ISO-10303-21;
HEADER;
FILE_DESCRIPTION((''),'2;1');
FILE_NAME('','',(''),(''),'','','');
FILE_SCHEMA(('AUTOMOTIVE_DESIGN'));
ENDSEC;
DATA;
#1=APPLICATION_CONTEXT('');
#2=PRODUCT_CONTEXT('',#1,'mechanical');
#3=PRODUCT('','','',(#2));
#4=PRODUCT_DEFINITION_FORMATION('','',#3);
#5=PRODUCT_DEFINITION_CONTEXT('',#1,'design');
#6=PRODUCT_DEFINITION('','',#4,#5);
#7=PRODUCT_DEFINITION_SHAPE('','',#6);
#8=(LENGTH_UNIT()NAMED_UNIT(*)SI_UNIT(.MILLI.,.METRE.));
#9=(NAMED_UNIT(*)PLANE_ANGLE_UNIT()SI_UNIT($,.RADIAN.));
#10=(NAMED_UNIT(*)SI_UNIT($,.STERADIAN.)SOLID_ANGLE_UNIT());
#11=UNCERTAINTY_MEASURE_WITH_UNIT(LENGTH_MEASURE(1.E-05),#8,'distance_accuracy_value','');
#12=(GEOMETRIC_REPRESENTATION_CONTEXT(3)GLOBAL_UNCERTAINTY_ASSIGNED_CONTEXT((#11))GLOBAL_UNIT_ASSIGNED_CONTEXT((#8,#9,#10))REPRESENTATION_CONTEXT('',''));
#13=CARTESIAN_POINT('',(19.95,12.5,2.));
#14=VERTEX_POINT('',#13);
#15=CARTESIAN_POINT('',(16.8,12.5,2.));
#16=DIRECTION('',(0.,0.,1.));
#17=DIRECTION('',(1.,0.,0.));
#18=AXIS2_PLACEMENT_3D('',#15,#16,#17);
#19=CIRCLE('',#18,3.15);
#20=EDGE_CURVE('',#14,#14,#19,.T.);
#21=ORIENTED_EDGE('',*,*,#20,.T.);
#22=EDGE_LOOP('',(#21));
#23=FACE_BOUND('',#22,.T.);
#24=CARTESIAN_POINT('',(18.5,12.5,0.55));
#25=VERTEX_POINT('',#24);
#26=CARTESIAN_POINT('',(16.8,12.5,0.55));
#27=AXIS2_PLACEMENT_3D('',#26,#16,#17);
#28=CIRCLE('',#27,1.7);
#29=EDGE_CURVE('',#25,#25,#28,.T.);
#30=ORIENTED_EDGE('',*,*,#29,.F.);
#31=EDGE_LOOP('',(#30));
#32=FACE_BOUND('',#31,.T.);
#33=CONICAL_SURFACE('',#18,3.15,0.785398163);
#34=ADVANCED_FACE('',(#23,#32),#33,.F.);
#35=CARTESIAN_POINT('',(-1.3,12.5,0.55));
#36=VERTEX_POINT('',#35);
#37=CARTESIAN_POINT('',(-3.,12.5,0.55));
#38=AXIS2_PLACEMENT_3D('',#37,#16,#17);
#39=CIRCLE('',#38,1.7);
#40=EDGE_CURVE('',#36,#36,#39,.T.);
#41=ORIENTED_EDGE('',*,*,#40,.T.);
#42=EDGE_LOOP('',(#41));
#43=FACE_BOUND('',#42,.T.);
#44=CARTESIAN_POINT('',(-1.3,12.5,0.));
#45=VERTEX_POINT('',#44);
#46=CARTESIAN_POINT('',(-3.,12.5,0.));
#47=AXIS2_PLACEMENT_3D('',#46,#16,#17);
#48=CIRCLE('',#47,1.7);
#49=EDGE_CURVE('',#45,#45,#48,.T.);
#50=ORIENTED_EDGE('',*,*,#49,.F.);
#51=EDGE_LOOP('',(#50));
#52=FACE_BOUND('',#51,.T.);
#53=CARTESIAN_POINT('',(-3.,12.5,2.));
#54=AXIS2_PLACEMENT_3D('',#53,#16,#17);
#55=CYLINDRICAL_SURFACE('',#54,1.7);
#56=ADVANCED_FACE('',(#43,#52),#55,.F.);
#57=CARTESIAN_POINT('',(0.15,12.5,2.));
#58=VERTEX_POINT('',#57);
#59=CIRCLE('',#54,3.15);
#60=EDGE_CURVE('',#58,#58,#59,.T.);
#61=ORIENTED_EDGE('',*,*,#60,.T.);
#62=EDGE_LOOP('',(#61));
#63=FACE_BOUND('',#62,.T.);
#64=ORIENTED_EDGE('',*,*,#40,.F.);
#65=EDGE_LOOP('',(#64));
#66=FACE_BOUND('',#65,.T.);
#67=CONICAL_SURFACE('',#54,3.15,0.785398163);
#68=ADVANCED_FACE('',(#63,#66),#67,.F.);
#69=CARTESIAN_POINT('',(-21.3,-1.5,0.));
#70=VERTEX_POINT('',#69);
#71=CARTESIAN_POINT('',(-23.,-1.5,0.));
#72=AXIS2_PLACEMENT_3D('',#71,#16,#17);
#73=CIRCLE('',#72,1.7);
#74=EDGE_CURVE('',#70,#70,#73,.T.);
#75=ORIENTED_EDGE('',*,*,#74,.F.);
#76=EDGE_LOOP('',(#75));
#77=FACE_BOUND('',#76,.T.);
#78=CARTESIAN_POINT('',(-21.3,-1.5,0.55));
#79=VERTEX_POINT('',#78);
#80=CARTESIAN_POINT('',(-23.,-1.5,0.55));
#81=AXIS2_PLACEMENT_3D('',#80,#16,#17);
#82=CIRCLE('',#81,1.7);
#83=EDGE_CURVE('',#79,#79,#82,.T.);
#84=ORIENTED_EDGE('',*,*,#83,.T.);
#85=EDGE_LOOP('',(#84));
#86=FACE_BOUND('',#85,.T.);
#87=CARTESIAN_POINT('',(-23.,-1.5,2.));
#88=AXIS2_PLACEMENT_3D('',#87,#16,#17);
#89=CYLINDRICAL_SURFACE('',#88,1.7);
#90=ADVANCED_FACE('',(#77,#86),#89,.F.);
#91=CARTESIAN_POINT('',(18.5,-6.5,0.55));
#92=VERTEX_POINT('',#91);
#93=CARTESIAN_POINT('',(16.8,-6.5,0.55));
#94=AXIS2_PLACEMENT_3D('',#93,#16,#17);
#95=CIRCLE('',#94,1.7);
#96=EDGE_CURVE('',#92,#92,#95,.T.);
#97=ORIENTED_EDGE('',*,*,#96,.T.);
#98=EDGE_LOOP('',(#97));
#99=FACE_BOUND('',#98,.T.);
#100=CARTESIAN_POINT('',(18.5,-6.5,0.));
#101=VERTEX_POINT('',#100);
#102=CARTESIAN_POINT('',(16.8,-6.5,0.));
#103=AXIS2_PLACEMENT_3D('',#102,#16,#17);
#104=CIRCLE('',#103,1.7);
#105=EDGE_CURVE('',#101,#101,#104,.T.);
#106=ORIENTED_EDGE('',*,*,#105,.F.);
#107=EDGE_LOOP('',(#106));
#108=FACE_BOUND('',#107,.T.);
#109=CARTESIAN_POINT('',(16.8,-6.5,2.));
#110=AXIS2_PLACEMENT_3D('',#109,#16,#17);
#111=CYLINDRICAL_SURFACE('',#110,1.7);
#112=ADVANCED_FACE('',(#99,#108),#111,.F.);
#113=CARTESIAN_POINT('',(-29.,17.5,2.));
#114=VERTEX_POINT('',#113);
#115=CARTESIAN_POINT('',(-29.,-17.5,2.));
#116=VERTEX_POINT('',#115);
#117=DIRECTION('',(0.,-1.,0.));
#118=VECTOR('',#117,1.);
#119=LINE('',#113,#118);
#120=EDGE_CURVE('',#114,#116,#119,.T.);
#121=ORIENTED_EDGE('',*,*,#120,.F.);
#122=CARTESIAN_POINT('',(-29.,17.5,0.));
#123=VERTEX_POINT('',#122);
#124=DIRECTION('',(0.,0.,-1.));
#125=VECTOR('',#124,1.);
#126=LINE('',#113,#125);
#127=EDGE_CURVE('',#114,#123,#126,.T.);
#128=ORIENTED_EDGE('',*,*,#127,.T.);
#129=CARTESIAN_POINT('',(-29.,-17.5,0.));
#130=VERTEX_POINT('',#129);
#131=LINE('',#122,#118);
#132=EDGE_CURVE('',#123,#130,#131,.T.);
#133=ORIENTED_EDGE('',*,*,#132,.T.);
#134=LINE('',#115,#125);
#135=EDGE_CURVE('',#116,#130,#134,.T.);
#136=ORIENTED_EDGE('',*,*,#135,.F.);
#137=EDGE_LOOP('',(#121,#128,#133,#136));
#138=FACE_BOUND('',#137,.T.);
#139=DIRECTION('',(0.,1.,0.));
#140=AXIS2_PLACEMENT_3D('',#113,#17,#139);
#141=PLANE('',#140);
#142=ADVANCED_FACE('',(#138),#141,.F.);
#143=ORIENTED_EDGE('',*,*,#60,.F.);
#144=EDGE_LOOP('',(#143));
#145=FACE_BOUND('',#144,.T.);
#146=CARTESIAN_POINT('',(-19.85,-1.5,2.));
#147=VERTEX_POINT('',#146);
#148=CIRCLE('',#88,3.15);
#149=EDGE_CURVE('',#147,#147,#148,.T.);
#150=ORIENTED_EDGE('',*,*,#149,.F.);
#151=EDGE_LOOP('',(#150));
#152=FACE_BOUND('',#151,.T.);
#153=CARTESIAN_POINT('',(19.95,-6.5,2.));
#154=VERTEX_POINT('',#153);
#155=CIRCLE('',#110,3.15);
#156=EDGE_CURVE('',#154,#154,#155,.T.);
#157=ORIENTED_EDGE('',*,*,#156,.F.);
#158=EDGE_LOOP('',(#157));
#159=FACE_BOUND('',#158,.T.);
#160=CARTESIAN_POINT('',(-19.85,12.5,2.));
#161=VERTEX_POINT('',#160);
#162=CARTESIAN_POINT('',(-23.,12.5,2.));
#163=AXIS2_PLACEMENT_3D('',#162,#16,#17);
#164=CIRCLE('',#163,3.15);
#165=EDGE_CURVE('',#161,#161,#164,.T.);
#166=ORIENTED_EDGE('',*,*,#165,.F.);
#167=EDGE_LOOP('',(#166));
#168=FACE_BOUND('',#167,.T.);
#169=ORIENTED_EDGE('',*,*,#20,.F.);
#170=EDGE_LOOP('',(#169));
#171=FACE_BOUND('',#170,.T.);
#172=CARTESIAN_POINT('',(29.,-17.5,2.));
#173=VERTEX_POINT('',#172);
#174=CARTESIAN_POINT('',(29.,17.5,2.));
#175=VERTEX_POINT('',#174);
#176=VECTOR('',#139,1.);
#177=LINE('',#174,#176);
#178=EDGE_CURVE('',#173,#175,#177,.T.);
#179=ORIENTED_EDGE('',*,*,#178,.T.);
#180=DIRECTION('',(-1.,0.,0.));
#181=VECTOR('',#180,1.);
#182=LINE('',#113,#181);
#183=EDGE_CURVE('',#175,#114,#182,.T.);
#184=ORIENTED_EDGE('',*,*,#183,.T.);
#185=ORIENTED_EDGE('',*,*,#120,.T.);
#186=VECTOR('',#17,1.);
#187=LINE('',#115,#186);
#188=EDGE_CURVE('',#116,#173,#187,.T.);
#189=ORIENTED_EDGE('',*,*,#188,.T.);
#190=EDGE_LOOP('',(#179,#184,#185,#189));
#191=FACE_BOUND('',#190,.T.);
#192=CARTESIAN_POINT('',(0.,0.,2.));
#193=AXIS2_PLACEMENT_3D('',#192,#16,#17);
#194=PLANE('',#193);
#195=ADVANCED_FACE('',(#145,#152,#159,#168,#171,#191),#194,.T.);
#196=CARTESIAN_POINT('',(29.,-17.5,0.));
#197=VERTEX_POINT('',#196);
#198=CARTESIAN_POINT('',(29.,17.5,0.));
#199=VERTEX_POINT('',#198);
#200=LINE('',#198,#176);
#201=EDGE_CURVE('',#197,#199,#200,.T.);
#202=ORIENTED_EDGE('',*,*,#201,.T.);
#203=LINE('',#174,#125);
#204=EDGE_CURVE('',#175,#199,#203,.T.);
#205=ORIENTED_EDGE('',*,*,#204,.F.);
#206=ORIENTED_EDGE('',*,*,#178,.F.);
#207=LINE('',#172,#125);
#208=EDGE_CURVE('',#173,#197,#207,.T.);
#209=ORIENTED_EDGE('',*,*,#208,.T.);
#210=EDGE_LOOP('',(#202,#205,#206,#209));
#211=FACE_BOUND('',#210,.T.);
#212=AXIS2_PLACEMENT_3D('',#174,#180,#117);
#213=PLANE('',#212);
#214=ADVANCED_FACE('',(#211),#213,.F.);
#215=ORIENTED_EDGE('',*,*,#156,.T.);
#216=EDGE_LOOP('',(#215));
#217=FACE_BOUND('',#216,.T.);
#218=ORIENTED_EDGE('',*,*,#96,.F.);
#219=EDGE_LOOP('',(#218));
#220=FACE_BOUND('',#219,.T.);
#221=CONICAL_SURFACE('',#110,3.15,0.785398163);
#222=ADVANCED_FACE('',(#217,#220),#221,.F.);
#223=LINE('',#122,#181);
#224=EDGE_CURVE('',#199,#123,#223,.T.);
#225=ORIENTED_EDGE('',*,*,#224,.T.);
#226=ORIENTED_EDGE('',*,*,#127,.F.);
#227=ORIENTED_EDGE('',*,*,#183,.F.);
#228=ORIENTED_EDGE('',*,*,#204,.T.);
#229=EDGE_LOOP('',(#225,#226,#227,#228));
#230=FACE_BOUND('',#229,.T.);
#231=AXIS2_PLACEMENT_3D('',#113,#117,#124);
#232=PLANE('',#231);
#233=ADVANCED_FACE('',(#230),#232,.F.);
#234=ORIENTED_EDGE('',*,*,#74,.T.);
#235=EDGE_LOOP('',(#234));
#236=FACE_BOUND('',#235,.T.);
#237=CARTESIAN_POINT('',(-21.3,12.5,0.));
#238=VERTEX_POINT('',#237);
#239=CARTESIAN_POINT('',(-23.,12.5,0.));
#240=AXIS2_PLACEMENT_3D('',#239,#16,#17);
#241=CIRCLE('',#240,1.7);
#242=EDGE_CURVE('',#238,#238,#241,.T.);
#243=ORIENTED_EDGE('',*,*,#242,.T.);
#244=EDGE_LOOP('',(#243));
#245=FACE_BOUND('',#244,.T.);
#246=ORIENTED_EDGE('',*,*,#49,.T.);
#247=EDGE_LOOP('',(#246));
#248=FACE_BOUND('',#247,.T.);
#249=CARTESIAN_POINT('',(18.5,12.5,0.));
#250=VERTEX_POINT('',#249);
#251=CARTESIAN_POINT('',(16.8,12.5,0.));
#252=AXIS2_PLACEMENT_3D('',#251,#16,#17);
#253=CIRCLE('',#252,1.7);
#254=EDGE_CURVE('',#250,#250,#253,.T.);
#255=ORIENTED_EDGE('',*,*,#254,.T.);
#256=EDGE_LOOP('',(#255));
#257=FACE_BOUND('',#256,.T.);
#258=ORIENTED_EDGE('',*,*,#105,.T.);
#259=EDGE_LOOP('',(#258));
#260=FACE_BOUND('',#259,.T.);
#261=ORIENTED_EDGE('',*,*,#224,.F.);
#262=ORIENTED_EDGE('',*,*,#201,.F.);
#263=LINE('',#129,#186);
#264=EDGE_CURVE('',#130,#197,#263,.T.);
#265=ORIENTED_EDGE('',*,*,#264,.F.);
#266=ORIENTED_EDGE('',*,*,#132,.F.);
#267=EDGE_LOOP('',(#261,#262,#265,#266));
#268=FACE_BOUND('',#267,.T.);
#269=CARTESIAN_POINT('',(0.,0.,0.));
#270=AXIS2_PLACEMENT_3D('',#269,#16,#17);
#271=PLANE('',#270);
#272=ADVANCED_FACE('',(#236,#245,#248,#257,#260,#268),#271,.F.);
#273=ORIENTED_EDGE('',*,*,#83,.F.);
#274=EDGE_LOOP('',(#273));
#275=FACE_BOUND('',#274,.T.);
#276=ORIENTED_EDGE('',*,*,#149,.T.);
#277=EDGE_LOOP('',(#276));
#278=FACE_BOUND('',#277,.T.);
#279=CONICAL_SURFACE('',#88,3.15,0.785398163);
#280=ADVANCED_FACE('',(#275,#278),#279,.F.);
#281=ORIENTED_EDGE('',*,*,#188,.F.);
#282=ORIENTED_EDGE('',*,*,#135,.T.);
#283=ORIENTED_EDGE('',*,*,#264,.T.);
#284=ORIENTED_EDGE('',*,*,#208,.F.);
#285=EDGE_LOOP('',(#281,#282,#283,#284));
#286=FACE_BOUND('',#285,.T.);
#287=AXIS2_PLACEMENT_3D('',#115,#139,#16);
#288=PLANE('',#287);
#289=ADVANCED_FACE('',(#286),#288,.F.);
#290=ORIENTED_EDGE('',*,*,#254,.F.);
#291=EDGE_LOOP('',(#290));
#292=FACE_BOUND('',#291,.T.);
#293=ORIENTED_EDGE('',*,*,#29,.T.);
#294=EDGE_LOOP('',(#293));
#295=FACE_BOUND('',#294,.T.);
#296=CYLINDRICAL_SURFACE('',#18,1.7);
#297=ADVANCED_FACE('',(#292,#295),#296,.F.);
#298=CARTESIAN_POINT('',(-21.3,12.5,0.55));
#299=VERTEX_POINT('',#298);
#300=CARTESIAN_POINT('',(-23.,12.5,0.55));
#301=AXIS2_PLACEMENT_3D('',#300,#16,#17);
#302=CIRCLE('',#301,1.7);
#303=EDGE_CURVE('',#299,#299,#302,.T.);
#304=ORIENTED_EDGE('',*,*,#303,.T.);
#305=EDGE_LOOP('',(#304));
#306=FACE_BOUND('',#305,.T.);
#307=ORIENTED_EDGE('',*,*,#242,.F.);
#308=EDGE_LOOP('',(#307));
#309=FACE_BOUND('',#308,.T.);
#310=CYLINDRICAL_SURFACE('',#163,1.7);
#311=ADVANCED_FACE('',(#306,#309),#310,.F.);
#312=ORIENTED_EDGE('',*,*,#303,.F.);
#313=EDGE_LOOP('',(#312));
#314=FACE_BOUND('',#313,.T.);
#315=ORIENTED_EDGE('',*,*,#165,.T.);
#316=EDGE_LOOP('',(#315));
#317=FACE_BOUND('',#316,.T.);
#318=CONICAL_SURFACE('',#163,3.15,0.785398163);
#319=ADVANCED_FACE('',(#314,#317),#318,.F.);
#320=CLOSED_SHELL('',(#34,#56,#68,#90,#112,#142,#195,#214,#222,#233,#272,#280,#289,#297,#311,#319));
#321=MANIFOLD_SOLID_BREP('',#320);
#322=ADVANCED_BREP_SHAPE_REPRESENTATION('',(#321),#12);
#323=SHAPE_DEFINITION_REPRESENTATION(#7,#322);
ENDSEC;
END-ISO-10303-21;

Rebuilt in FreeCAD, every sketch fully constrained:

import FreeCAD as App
import Part
import Sketcher
Q = App.Units.Quantity


def add_polygon(sketch, points):
    """Adds a closed chain of lines whose ends are joined by coincident constraints."""
    first, n = sketch.GeometryCount, len(points)
    for a, b in zip(points, points[1:] + points[:1]):
        sketch.addGeometry(Part.LineSegment(App.Vector(*a, 0), App.Vector(*b, 0)), False)
    for i in range(n):
        sketch.addConstraint(Sketcher.Constraint("Coincident", first + i, 2, first + (i + 1) % n, 1))

doc = App.newDocument("Part")
body = doc.addObject("PartDesign::Body", "Body")

# Sketch on XY plane
sketch1 = body.newObject("Sketcher::SketchObject", "Sketch")
sketch1.AttachmentSupport = (doc.getObject("XY_Plane"), [""])
sketch1.MapMode = "FlatFace"
add_polygon(sketch1, [(-29, 17.5), (-29, -17.5), (29, -17.5), (29, 17.5)])  # lines 0-3
sketch1.addConstraint([
    Sketcher.Constraint("Vertical", 0),
    Sketcher.Constraint("Horizontal", 1),
    Sketcher.Constraint("Vertical", 2),
    Sketcher.Constraint("Horizontal", 3),
    Sketcher.Constraint("Symmetric", 0, 2, 2, 2, -1, 1),
    Sketcher.Constraint("DistanceX", 1, 1, 1, 2, Q("58 mm")),
    Sketcher.Constraint("DistanceY", 0, 2, 0, 1, Q("35 mm")),
])
pad1 = body.newObject("PartDesign::Pad", "Pad")
pad1.Profile = sketch1
pad1.Length = 2

# Sketch on YZ plane
sketch2 = body.newObject("Sketcher::SketchObject", "Sketch001")
sketch2.AttachmentSupport = (doc.getObject("YZ_Plane"), [""])
sketch2.MapMode = "FlatFace"
sketch2.AttachmentOffset = App.Placement(App.Vector(0, 0, -23), App.Rotation())
add_polygon(sketch2, [(12.5, 0), (12.5, 2), (9.35, 2), (10.8, 0.55), (10.8, 0)])  # lines 0-4
sketch2.addGeometry(Part.LineSegment(App.Vector(12.5, 2, 0), App.Vector(12.5, 0, 0)), True)  # axis
sketch2.addConstraint([
    Sketcher.Constraint("Vertical", 0),
    Sketcher.Constraint("Horizontal", 1),
    Sketcher.Constraint("Vertical", 3),
    Sketcher.Constraint("Horizontal", 4),
    Sketcher.Constraint("Vertical", 5),
    Sketcher.Constraint("Coincident", 5, 1, 0, 2),
    Sketcher.Constraint("PointOnObject", 3, 2, -1),
    Sketcher.Constraint("PointOnObject", 5, 2, -1),
    Sketcher.Constraint("DistanceY", 0, 1, 0, 2, Q("2 mm")),
    Sketcher.Constraint("Angle", 2, Q("-45 deg")),
    Sketcher.Constraint("DistanceX", 4, 1, 4, 2, Q("1.7 mm")),
    Sketcher.Constraint("DistanceX", 1, 2, 1, 1, Q("3.15 mm")),
    Sketcher.Constraint("DistanceX", -1, 1, 0, 2, Q("12.5 mm")),
])
groove = body.newObject("PartDesign::Groove", "Groove")
groove.Profile = sketch2
groove.ReferenceAxis = (sketch2, ["Axis0"])
groove.Angle = 360
doc.recompute()

linearpattern = body.newObject("PartDesign::LinearPattern", "LinearPattern")
linearpattern.Originals = [groove]
linearpattern.Direction = (doc.getObject("X_Axis"), [""])
linearpattern.Mode = "offset"
linearpattern.Offset = 20
linearpattern.Occurrences = 2
body.Tip = linearpattern
doc.recompute()

linearpattern2 = body.newObject("PartDesign::LinearPattern", "LinearPattern001")
linearpattern2.Originals = [groove]
linearpattern2.Direction = (doc.getObject("X_Axis"), [""])
linearpattern2.Mode = "offset"
linearpattern2.Offset = 39.8
linearpattern2.Occurrences = 2
body.Tip = linearpattern2
doc.recompute()

datumline = body.newObject("PartDesign::Line", "DatumLine")
datumline.Placement = App.Placement(App.Vector(0, 0, 0), App.Rotation(App.Vector(0, 0, 1), App.Vector(0.90244097, -0.430813528, 0)))
linearpattern3 = body.newObject("PartDesign::LinearPattern", "LinearPattern002")
linearpattern3.Originals = [groove]
linearpattern3.Direction = (datumline, [""])
linearpattern3.Mode = "offset"
linearpattern3.Offset = 44.102608
linearpattern3.Occurrences = 2
body.Tip = linearpattern3
doc.recompute()

linearpattern4 = body.newObject("PartDesign::LinearPattern", "LinearPattern003")
linearpattern4.Originals = [groove]
linearpattern4.Direction = (doc.getObject("Y_Axis"), [""])
linearpattern4.Mode = "offset"
linearpattern4.Offset = 14
linearpattern4.Occurrences = 2
linearpattern4.Reversed = True
body.Tip = linearpattern4

doc.recompute()
